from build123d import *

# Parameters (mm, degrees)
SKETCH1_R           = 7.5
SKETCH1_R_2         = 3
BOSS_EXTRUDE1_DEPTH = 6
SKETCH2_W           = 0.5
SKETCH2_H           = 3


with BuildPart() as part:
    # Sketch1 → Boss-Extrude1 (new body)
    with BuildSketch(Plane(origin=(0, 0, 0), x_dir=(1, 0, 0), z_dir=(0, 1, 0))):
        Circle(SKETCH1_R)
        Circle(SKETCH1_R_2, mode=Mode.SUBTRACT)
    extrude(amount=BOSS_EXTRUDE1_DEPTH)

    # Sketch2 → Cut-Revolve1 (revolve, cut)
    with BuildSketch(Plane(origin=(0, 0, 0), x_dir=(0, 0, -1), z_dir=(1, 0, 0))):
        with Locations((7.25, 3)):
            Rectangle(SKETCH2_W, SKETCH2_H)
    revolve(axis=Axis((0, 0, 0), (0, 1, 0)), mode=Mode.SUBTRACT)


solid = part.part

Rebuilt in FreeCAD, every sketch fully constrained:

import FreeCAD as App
import Part
import Sketcher
from FreeCAD import Vector
Q = App.Units.Quantity


def add_polygon(sketch, points):
    """Adds a closed chain of lines whose ends are joined by coincident constraints."""
    first, n = sketch.GeometryCount, len(points)
    for a, b in zip(points, points[1:] + points[:1]):
        sketch.addGeometry(Part.LineSegment(App.Vector(*a, 0), App.Vector(*b, 0)), False)
    for i in range(n):
        sketch.addConstraint(Sketcher.Constraint("Coincident", first + i, 2, first + (i + 1) % n, 1))

doc = App.newDocument("Part")
body = doc.addObject("PartDesign::Body", "Body")

# Sketch on XZ plane
sketch1 = doc.addObject("Sketcher::SketchObject", "Sketch")
body.addObject(sketch1)
sketch1.AttachmentSupport = (doc.XZ_Plane, [""])
sketch1.MapMode = "FlatFace"
sketch1.addGeometry(Part.Circle(Vector(0, 0, 0), Vector(0, 0, 1), 7.5), False)
sketch1.addGeometry(Part.Circle(Vector(0, 0, 0), Vector(0, 0, 1), 3), False)
sketch1.addConstraint(Sketcher.Constraint("Coincident", 0, 3, -1, 1))
sketch1.addConstraint(Sketcher.Constraint("Coincident", 1, 3, -1, 1))
sketch1.addConstraint(Sketcher.Constraint("Diameter", 0, Q("15 mm")))
sketch1.addConstraint(Sketcher.Constraint("Diameter", 1, Q("6 mm")))
pad1 = doc.addObject("PartDesign::Pad", "Pad")
body.addObject(pad1)
pad1.Profile = sketch1
pad1.Length = 6
pad1.Reversed = True

# Sketch on YZ plane
sketch2 = doc.addObject("Sketcher::SketchObject", "Sketch001")
body.addObject(sketch2)
sketch2.AttachmentSupport = (doc.YZ_Plane, [""])
sketch2.MapMode = "FlatFace"
add_polygon(sketch2, [(4.5, -7), (1.5, -7), (1.5, -7.5), (4.5, -7.5)])  # lines 0-3
sketch2.addConstraint(Sketcher.Constraint("Horizontal", 0))
sketch2.addConstraint(Sketcher.Constraint("Vertical", 1))
sketch2.addConstraint(Sketcher.Constraint("Horizontal", 2))
sketch2.addConstraint(Sketcher.Constraint("Vertical", 3))
sketch2.addConstraint(Sketcher.Constraint("DistanceX", 0, 2, 0, 1, Q("3 mm")))
sketch2.addConstraint(Sketcher.Constraint("DistanceY", 1, 2, 1, 1, Q("0.5 mm")))
sketch2.addConstraint(Sketcher.Constraint("DistanceY", 0, 2, -1, 1, Q("7 mm")))
sketch2.addConstraint(Sketcher.Constraint("DistanceX", -1, 1, 0, 2, Q("1.5 mm")))
groove = doc.addObject("PartDesign::Groove", "Groove")
body.addObject(groove)
groove.Profile = sketch2
groove.ReferenceAxis = (sketch2, ["H_Axis"])
groove.Angle = 360

doc.recompute()
